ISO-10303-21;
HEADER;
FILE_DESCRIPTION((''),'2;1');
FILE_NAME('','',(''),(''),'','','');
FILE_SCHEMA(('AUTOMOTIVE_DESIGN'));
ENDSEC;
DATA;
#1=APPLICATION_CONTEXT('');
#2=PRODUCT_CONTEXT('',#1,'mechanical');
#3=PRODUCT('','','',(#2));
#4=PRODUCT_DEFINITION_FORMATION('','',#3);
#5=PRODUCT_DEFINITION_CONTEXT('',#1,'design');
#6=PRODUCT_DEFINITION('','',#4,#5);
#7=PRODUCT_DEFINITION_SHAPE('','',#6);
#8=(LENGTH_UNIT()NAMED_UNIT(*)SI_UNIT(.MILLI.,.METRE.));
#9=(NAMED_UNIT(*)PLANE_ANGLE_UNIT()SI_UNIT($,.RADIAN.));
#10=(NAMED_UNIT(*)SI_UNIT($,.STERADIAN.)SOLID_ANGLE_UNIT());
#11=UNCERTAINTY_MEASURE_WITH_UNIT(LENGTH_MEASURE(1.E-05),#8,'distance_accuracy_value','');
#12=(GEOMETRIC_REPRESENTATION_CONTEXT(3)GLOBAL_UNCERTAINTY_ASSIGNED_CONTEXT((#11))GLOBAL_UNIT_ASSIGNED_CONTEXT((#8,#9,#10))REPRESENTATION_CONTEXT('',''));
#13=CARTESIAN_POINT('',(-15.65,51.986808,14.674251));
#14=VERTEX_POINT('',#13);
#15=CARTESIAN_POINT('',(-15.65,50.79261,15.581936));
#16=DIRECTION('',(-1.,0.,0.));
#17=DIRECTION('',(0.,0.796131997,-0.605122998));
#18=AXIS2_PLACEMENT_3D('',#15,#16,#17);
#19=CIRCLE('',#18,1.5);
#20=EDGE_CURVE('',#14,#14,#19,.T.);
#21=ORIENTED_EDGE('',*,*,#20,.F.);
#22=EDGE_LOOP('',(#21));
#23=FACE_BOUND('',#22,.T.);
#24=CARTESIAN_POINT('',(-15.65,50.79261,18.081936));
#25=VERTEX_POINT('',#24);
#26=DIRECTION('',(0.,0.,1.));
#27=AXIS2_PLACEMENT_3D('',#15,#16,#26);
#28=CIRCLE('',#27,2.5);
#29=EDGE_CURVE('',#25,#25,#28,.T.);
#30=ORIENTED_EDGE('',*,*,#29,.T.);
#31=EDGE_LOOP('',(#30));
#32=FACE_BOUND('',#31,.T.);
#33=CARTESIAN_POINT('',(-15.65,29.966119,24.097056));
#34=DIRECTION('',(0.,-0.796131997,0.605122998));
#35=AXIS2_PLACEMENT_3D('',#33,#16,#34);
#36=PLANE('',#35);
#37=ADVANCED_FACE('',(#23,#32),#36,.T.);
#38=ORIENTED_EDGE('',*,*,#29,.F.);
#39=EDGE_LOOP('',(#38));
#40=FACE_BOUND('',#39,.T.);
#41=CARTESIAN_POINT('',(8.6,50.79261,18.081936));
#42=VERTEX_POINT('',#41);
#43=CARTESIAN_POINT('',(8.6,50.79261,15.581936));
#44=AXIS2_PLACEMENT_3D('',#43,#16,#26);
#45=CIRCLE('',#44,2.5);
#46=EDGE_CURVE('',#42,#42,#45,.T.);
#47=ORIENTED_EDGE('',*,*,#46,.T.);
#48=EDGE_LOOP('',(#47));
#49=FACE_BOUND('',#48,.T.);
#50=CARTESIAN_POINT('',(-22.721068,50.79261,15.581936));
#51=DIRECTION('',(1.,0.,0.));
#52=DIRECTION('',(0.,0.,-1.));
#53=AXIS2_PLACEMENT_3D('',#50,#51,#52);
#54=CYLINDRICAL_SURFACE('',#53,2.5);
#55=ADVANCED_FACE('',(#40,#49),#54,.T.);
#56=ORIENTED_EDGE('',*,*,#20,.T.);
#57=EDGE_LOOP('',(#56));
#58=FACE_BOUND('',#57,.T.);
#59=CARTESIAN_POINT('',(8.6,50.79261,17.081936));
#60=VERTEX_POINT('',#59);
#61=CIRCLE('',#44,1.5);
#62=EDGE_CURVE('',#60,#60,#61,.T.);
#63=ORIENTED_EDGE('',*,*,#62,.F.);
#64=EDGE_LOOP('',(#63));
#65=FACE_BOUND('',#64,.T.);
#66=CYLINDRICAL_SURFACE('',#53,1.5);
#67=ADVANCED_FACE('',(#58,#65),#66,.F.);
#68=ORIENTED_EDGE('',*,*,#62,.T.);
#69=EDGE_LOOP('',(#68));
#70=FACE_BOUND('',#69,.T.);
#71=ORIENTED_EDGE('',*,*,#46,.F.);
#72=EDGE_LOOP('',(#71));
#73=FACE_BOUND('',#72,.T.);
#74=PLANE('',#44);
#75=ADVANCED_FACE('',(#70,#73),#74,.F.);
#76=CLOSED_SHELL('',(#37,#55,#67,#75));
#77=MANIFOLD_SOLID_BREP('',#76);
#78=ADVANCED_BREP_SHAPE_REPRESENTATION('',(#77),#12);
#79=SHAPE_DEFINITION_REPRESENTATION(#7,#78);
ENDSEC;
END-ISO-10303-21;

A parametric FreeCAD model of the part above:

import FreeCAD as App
import Part
import Sketcher
from FreeCAD import Vector

doc = App.newDocument("Part")
body = doc.addObject("PartDesign::Body", "Body")

# Sketch on YZ plane
sketch1 = doc.addObject("Sketcher::SketchObject", "Sketch")
body.addObject(sketch1)
sketch1.AttachmentSupport = (doc.YZ_Plane, [""])
sketch1.MapMode = "FlatFace"
sketch1.AttachmentOffset = App.Placement(Vector(0, 0, 8.6), App.Rotation())
sketch1.addGeometry([
    Part.Circle(Vector(50.8, 15.6, 0), Vector(0, 0, 1), 2.5),
    Part.Circle(Vector(50.8, 15.6, 0), Vector(0, 0, 1), 1.5),
], False)
sketch1.addConstraint([
    Sketcher.Constraint("Coincident", 1, 3, 0, 3),
    Sketcher.Constraint("Diameter", 0, 5.0),
    Sketcher.Constraint("Diameter", 1, 3.0),
    Sketcher.Constraint("DistanceX", -1, 1, 0, 3, 50.79261),
    Sketcher.Constraint("DistanceY", -1, 1, 0, 3, 15.581936),
])
pad1 = doc.addObject("PartDesign::Pad", "Pad")
body.addObject(pad1)
pad1.Profile = sketch1
pad1.Length = 24.25
pad1.Reversed = True

doc.recompute()
